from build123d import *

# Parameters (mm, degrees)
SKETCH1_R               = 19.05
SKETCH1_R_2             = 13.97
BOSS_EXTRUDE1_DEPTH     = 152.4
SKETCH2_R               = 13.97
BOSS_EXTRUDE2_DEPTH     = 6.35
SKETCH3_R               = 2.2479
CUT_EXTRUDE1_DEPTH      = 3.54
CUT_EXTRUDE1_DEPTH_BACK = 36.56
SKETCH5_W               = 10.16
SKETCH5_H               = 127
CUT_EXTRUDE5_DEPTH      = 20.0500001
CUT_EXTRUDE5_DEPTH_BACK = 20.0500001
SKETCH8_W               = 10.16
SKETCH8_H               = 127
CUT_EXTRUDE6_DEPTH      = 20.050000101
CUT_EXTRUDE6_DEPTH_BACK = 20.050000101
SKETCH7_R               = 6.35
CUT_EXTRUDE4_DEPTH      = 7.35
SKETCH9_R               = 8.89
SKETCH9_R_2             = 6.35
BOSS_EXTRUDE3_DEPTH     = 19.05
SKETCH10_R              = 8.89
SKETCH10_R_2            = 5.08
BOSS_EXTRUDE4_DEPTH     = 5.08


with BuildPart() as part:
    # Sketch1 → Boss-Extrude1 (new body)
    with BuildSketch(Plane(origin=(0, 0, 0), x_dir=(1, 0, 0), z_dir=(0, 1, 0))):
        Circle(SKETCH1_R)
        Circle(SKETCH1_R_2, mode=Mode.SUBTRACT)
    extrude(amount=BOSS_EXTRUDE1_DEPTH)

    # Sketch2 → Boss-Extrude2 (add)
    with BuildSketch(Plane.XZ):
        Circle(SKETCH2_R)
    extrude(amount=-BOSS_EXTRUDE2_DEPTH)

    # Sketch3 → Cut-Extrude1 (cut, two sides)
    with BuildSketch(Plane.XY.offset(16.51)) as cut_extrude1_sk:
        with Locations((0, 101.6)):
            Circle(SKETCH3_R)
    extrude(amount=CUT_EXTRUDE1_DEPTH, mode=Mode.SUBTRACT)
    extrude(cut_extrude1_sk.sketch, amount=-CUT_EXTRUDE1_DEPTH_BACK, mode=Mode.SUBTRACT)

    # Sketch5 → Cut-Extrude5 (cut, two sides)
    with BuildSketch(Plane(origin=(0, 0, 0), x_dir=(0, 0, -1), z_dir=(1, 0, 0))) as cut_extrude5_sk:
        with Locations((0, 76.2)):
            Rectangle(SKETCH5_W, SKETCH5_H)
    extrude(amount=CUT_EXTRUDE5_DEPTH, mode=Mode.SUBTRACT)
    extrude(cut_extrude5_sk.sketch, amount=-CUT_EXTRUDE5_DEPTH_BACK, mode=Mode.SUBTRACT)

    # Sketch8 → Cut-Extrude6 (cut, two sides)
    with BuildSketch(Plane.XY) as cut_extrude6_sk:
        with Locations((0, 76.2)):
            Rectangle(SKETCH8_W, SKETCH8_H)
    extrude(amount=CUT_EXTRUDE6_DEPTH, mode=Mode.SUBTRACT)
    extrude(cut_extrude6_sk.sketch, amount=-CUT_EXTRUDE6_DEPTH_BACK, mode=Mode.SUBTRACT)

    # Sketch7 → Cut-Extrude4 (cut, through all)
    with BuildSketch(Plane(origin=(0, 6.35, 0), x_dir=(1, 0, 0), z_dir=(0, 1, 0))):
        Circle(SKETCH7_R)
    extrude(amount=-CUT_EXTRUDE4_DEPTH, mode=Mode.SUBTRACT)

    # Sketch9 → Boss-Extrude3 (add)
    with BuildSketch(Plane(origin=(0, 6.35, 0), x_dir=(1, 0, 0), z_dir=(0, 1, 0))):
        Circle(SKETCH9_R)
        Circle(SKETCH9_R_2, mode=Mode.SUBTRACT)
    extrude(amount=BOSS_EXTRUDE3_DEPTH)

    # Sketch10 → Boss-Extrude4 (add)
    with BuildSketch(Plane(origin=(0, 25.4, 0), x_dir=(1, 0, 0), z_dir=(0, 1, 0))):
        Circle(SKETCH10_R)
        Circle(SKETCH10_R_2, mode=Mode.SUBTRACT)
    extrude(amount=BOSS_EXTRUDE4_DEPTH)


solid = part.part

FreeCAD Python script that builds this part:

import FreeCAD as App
import Part
import Sketcher
from FreeCAD import Vector
Q = App.Units.Quantity


def add_polygon(sketch, points):
    """Adds a closed chain of lines whose ends are joined by coincident constraints."""
    first, n = sketch.GeometryCount, len(points)
    for a, b in zip(points, points[1:] + points[:1]):
        sketch.addGeometry(Part.LineSegment(App.Vector(*a, 0), App.Vector(*b, 0)), False)
    for i in range(n):
        sketch.addConstraint(Sketcher.Constraint("Coincident", first + i, 2, first + (i + 1) % n, 1))

doc = App.newDocument("Part")
params = doc.addObject("Spreadsheet::Sheet", "Params")
for row, (alias, value) in enumerate([
    ("sketch1_diameter", "1.5 in"),
    ("sketch1_diameter2", "1.1 in"),
    ("pad1_length", "6 in"),
    ("sketch2_diameter", "1.1 in"),
    ("pad2_length", "0.25 in"),
    ("sketch3_diameter", "0.177 in"),
    ("sketch4_width", "5 in"),
    ("sketch4_height", "0.4 in"),
    ("sketch5_height", "5 in"),
    ("sketch5_width", "0.4 in"),
    ("sketch6_diameter", "0.5 in"),
    ("sketch7_diameter", "0.7 in"),
    ("sketch7_diameter2", "0.5 in"),
    ("pad3_length", "0.75 in"),
    ("sketch8_diameter", "0.7 in"),
    ("sketch8_diameter2", "0.4 in"),
    ("pad4_length", "0.2 in"),
], start=1):
    params.set(f"A{row}", alias)
    params.set(f"B{row}", "=" + value)
    params.setAlias(f"B{row}", alias)

body = doc.addObject("PartDesign::Body", "Body")

sketch1 = body.newObject("Sketcher::SketchObject", "Sketch")
sketch1.AttachmentSupport = (doc.getObject("XZ_Plane"), [""])
sketch1.MapMode = "FlatFace"
sketch1.addGeometry([
    Part.Circle(Vector(0, 0, 0), Vector(0, 0, 1), 19.05),
    Part.Circle(Vector(0, 0, 0), Vector(0, 0, 1), 13.97),
], False)
sketch1.addConstraint([
    Sketcher.Constraint("Coincident", 0, 3, -1, 1),
    Sketcher.Constraint("Coincident", 1, 3, -1, 1),
    Sketcher.Constraint("Diameter", 0, Q("1.5 in")),
    Sketcher.Constraint("Diameter", 1, Q("1.1 in")),
])
sketch1.setExpression("Constraints[2]", "Params.sketch1_diameter")
sketch1.setExpression("Constraints[3]", "Params.sketch1_diameter2")
pad1 = body.newObject("PartDesign::Pad", "Pad")
pad1.Profile = sketch1
pad1.setExpression("Length", "Params.pad1_length")
pad1.Reversed = True

sketch2 = body.newObject("Sketcher::SketchObject", "Sketch001")
sketch2.AttachmentSupport = (doc.getObject("XZ_Plane"), [""])
sketch2.MapMode = "FlatFace"
sketch2.addGeometry(Part.Circle(Vector(0, 0, 0), Vector(0, 0, 1), 13.97), False)
sketch2.addConstraint([
    Sketcher.Constraint("Coincident", 0, 3, -1, 1),
    Sketcher.Constraint("Diameter", 0, Q("1.1 in")),
])
sketch2.setExpression("Constraints[1]", "Params.sketch2_diameter")
pad2 = body.newObject("PartDesign::Pad", "Pad001")
pad2.Profile = sketch2
pad2.setExpression("Length", "Params.pad2_length")
pad2.Reversed = True

sketch3 = body.newObject("Sketcher::SketchObject", "Sketch002")
sketch3.AttachmentSupport = (doc.getObject("XY_Plane"), [""])
sketch3.MapMode = "FlatFace"
sketch3.AttachmentOffset = App.Placement(Vector(0, 0, 0.65 * 25.4), App.Rotation())
sketch3.addGeometry(Part.Circle(Vector(0, 101.6, 0), Vector(0, 0, 1), 2.2479), False)
sketch3.addConstraint([
    Sketcher.Constraint("PointOnObject", 0, 3, -2),
    Sketcher.Constraint("Diameter", 0, Q("0.177 in")),
    Sketcher.Constraint("DistanceY", -1, 1, 0, 3, Q("4 in")),
])
sketch3.setExpression("Constraints[1]", "Params.sketch3_diameter")
pocket1 = body.newObject("PartDesign::Pocket", "Pocket")
pocket1.Profile = sketch3
pocket1.Type = "ThroughAll"
pocket1.Midplane = True

sketch4 = body.newObject("Sketcher::SketchObject", "Sketch003")
sketch4.AttachmentSupport = (doc.getObject("YZ_Plane"), [""])
sketch4.MapMode = "FlatFace"
add_polygon(sketch4, [(139.7, 5.08), (12.7, 5.08), (12.7, -5.08), (139.7, -5.08)])
sketch4.addConstraint([
    Sketcher.Constraint("Horizontal", 0),
    Sketcher.Constraint("Vertical", 1),
    Sketcher.Constraint("Horizontal", 2),
    Sketcher.Constraint("Vertical", 3),
    Sketcher.Constraint("DistanceX", 0, 2, 0, 1, Q("5 in")),
    Sketcher.Constraint("DistanceY", 1, 2, 1, 1, Q("0.4 in")),
    Sketcher.Constraint("DistanceX", -1, 1, 0, 2, Q("0.5 in")),
    Sketcher.Constraint("DistanceY", -1, 1, 0, 2, Q("0.2 in")),
])
sketch4.setExpression("Constraints[8]", "Params.sketch4_width")
sketch4.setExpression("Constraints[9]", "Params.sketch4_height")
pocket2 = body.newObject("PartDesign::Pocket", "Pocket001")
pocket2.Profile = sketch4
pocket2.Type = "ThroughAll"
pocket2.Midplane = True

sketch5 = body.newObject("Sketcher::SketchObject", "Sketch004")
sketch5.AttachmentSupport = (doc.getObject("XY_Plane"), [""])
sketch5.MapMode = "FlatFace"
add_polygon(sketch5, [(-5.08, 139.7), (-5.08, 12.7), (5.08, 12.7), (5.08, 139.7)])
sketch5.addConstraint([
    Sketcher.Constraint("Vertical", 0),
    Sketcher.Constraint("Horizontal", 1),
    Sketcher.Constraint("Vertical", 2),
    Sketcher.Constraint("Horizontal", 3),
    Sketcher.Constraint("DistanceY", 0, 2, 0, 1, Q("5 in")),
    Sketcher.Constraint("DistanceX", 1, 1, 1, 2, Q("0.4 in")),
    Sketcher.Constraint("DistanceX", 0, 2, -1, 1, Q("0.2 in")),
    Sketcher.Constraint("DistanceY", -1, 1, 0, 2, Q("0.5 in")),
])
sketch5.setExpression("Constraints[8]", "Params.sketch5_height")
sketch5.setExpression("Constraints[9]", "Params.sketch5_width")
pocket3 = body.newObject("PartDesign::Pocket", "Pocket002")
pocket3.Profile = sketch5
pocket3.Type = "ThroughAll"
pocket3.Midplane = True

sketch6 = body.newObject("Sketcher::SketchObject", "Sketch005")
sketch6.AttachmentSupport = (doc.getObject("XZ_Plane"), [""])
sketch6.MapMode = "FlatFace"
sketch6.AttachmentOffset = App.Placement(Vector(0, 0, -0.25 * 25.4), App.Rotation())
sketch6.addGeometry(Part.Circle(Vector(0, 0, 0), Vector(0, 0, 1), 6.35), False)
sketch6.addConstraint([
    Sketcher.Constraint("Coincident", 0, 3, -1, 1),
    Sketcher.Constraint("Diameter", 0, Q("0.5 in")),
])
sketch6.setExpression("Constraints[1]", "Params.sketch6_diameter")
pocket4 = body.newObject("PartDesign::Pocket", "Pocket003")
pocket4.Profile = sketch6
pocket4.Type = "ThroughAll"
pocket4.Reversed = True

sketch7 = body.newObject("Sketcher::SketchObject", "Sketch006")
sketch7.AttachmentSupport = (doc.getObject("XZ_Plane"), [""])
sketch7.MapMode = "FlatFace"
sketch7.AttachmentOffset = App.Placement(Vector(0, 0, -0.25 * 25.4), App.Rotation())
sketch7.addGeometry([
    Part.Circle(Vector(0, 0, 0), Vector(0, 0, 1), 8.89),
    Part.Circle(Vector(0, 0, 0), Vector(0, 0, 1), 6.35),
], False)
sketch7.addConstraint([
    Sketcher.Constraint("Coincident", 0, 3, -1, 1),
    Sketcher.Constraint("Coincident", 1, 3, -1, 1),
    Sketcher.Constraint("Diameter", 0, Q("0.7 in")),
    Sketcher.Constraint("Diameter", 1, Q("0.5 in")),
])
sketch7.setExpression("Constraints[2]", "Params.sketch7_diameter")
sketch7.setExpression("Constraints[3]", "Params.sketch7_diameter2")
pad3 = body.newObject("PartDesign::Pad", "Pad002")
pad3.Profile = sketch7
pad3.setExpression("Length", "Params.pad3_length")
pad3.Reversed = True

sketch8 = body.newObject("Sketcher::SketchObject", "Sketch007")
sketch8.AttachmentSupport = (doc.getObject("XZ_Plane"), [""])
sketch8.MapMode = "FlatFace"
sketch8.AttachmentOffset = App.Placement(Vector(0, 0, -1 * 25.4), App.Rotation())
sketch8.addGeometry([
    Part.Circle(Vector(0, 0, 0), Vector(0, 0, 1), 8.89),
    Part.Circle(Vector(0, 0, 0), Vector(0, 0, 1), 5.08),
], False)
sketch8.addConstraint([
    Sketcher.Constraint("Coincident", 0, 3, -1, 1),
    Sketcher.Constraint("Coincident", 1, 3, -1, 1),
    Sketcher.Constraint("Diameter", 0, Q("0.7 in")),
    Sketcher.Constraint("Diameter", 1, Q("0.4 in")),
])
sketch8.setExpression("Constraints[2]", "Params.sketch8_diameter")
sketch8.setExpression("Constraints[3]", "Params.sketch8_diameter2")
pad4 = body.newObject("PartDesign::Pad", "Pad003")
pad4.Profile = sketch8
pad4.setExpression("Length", "Params.pad4_length")
pad4.Reversed = True

doc.recompute()
